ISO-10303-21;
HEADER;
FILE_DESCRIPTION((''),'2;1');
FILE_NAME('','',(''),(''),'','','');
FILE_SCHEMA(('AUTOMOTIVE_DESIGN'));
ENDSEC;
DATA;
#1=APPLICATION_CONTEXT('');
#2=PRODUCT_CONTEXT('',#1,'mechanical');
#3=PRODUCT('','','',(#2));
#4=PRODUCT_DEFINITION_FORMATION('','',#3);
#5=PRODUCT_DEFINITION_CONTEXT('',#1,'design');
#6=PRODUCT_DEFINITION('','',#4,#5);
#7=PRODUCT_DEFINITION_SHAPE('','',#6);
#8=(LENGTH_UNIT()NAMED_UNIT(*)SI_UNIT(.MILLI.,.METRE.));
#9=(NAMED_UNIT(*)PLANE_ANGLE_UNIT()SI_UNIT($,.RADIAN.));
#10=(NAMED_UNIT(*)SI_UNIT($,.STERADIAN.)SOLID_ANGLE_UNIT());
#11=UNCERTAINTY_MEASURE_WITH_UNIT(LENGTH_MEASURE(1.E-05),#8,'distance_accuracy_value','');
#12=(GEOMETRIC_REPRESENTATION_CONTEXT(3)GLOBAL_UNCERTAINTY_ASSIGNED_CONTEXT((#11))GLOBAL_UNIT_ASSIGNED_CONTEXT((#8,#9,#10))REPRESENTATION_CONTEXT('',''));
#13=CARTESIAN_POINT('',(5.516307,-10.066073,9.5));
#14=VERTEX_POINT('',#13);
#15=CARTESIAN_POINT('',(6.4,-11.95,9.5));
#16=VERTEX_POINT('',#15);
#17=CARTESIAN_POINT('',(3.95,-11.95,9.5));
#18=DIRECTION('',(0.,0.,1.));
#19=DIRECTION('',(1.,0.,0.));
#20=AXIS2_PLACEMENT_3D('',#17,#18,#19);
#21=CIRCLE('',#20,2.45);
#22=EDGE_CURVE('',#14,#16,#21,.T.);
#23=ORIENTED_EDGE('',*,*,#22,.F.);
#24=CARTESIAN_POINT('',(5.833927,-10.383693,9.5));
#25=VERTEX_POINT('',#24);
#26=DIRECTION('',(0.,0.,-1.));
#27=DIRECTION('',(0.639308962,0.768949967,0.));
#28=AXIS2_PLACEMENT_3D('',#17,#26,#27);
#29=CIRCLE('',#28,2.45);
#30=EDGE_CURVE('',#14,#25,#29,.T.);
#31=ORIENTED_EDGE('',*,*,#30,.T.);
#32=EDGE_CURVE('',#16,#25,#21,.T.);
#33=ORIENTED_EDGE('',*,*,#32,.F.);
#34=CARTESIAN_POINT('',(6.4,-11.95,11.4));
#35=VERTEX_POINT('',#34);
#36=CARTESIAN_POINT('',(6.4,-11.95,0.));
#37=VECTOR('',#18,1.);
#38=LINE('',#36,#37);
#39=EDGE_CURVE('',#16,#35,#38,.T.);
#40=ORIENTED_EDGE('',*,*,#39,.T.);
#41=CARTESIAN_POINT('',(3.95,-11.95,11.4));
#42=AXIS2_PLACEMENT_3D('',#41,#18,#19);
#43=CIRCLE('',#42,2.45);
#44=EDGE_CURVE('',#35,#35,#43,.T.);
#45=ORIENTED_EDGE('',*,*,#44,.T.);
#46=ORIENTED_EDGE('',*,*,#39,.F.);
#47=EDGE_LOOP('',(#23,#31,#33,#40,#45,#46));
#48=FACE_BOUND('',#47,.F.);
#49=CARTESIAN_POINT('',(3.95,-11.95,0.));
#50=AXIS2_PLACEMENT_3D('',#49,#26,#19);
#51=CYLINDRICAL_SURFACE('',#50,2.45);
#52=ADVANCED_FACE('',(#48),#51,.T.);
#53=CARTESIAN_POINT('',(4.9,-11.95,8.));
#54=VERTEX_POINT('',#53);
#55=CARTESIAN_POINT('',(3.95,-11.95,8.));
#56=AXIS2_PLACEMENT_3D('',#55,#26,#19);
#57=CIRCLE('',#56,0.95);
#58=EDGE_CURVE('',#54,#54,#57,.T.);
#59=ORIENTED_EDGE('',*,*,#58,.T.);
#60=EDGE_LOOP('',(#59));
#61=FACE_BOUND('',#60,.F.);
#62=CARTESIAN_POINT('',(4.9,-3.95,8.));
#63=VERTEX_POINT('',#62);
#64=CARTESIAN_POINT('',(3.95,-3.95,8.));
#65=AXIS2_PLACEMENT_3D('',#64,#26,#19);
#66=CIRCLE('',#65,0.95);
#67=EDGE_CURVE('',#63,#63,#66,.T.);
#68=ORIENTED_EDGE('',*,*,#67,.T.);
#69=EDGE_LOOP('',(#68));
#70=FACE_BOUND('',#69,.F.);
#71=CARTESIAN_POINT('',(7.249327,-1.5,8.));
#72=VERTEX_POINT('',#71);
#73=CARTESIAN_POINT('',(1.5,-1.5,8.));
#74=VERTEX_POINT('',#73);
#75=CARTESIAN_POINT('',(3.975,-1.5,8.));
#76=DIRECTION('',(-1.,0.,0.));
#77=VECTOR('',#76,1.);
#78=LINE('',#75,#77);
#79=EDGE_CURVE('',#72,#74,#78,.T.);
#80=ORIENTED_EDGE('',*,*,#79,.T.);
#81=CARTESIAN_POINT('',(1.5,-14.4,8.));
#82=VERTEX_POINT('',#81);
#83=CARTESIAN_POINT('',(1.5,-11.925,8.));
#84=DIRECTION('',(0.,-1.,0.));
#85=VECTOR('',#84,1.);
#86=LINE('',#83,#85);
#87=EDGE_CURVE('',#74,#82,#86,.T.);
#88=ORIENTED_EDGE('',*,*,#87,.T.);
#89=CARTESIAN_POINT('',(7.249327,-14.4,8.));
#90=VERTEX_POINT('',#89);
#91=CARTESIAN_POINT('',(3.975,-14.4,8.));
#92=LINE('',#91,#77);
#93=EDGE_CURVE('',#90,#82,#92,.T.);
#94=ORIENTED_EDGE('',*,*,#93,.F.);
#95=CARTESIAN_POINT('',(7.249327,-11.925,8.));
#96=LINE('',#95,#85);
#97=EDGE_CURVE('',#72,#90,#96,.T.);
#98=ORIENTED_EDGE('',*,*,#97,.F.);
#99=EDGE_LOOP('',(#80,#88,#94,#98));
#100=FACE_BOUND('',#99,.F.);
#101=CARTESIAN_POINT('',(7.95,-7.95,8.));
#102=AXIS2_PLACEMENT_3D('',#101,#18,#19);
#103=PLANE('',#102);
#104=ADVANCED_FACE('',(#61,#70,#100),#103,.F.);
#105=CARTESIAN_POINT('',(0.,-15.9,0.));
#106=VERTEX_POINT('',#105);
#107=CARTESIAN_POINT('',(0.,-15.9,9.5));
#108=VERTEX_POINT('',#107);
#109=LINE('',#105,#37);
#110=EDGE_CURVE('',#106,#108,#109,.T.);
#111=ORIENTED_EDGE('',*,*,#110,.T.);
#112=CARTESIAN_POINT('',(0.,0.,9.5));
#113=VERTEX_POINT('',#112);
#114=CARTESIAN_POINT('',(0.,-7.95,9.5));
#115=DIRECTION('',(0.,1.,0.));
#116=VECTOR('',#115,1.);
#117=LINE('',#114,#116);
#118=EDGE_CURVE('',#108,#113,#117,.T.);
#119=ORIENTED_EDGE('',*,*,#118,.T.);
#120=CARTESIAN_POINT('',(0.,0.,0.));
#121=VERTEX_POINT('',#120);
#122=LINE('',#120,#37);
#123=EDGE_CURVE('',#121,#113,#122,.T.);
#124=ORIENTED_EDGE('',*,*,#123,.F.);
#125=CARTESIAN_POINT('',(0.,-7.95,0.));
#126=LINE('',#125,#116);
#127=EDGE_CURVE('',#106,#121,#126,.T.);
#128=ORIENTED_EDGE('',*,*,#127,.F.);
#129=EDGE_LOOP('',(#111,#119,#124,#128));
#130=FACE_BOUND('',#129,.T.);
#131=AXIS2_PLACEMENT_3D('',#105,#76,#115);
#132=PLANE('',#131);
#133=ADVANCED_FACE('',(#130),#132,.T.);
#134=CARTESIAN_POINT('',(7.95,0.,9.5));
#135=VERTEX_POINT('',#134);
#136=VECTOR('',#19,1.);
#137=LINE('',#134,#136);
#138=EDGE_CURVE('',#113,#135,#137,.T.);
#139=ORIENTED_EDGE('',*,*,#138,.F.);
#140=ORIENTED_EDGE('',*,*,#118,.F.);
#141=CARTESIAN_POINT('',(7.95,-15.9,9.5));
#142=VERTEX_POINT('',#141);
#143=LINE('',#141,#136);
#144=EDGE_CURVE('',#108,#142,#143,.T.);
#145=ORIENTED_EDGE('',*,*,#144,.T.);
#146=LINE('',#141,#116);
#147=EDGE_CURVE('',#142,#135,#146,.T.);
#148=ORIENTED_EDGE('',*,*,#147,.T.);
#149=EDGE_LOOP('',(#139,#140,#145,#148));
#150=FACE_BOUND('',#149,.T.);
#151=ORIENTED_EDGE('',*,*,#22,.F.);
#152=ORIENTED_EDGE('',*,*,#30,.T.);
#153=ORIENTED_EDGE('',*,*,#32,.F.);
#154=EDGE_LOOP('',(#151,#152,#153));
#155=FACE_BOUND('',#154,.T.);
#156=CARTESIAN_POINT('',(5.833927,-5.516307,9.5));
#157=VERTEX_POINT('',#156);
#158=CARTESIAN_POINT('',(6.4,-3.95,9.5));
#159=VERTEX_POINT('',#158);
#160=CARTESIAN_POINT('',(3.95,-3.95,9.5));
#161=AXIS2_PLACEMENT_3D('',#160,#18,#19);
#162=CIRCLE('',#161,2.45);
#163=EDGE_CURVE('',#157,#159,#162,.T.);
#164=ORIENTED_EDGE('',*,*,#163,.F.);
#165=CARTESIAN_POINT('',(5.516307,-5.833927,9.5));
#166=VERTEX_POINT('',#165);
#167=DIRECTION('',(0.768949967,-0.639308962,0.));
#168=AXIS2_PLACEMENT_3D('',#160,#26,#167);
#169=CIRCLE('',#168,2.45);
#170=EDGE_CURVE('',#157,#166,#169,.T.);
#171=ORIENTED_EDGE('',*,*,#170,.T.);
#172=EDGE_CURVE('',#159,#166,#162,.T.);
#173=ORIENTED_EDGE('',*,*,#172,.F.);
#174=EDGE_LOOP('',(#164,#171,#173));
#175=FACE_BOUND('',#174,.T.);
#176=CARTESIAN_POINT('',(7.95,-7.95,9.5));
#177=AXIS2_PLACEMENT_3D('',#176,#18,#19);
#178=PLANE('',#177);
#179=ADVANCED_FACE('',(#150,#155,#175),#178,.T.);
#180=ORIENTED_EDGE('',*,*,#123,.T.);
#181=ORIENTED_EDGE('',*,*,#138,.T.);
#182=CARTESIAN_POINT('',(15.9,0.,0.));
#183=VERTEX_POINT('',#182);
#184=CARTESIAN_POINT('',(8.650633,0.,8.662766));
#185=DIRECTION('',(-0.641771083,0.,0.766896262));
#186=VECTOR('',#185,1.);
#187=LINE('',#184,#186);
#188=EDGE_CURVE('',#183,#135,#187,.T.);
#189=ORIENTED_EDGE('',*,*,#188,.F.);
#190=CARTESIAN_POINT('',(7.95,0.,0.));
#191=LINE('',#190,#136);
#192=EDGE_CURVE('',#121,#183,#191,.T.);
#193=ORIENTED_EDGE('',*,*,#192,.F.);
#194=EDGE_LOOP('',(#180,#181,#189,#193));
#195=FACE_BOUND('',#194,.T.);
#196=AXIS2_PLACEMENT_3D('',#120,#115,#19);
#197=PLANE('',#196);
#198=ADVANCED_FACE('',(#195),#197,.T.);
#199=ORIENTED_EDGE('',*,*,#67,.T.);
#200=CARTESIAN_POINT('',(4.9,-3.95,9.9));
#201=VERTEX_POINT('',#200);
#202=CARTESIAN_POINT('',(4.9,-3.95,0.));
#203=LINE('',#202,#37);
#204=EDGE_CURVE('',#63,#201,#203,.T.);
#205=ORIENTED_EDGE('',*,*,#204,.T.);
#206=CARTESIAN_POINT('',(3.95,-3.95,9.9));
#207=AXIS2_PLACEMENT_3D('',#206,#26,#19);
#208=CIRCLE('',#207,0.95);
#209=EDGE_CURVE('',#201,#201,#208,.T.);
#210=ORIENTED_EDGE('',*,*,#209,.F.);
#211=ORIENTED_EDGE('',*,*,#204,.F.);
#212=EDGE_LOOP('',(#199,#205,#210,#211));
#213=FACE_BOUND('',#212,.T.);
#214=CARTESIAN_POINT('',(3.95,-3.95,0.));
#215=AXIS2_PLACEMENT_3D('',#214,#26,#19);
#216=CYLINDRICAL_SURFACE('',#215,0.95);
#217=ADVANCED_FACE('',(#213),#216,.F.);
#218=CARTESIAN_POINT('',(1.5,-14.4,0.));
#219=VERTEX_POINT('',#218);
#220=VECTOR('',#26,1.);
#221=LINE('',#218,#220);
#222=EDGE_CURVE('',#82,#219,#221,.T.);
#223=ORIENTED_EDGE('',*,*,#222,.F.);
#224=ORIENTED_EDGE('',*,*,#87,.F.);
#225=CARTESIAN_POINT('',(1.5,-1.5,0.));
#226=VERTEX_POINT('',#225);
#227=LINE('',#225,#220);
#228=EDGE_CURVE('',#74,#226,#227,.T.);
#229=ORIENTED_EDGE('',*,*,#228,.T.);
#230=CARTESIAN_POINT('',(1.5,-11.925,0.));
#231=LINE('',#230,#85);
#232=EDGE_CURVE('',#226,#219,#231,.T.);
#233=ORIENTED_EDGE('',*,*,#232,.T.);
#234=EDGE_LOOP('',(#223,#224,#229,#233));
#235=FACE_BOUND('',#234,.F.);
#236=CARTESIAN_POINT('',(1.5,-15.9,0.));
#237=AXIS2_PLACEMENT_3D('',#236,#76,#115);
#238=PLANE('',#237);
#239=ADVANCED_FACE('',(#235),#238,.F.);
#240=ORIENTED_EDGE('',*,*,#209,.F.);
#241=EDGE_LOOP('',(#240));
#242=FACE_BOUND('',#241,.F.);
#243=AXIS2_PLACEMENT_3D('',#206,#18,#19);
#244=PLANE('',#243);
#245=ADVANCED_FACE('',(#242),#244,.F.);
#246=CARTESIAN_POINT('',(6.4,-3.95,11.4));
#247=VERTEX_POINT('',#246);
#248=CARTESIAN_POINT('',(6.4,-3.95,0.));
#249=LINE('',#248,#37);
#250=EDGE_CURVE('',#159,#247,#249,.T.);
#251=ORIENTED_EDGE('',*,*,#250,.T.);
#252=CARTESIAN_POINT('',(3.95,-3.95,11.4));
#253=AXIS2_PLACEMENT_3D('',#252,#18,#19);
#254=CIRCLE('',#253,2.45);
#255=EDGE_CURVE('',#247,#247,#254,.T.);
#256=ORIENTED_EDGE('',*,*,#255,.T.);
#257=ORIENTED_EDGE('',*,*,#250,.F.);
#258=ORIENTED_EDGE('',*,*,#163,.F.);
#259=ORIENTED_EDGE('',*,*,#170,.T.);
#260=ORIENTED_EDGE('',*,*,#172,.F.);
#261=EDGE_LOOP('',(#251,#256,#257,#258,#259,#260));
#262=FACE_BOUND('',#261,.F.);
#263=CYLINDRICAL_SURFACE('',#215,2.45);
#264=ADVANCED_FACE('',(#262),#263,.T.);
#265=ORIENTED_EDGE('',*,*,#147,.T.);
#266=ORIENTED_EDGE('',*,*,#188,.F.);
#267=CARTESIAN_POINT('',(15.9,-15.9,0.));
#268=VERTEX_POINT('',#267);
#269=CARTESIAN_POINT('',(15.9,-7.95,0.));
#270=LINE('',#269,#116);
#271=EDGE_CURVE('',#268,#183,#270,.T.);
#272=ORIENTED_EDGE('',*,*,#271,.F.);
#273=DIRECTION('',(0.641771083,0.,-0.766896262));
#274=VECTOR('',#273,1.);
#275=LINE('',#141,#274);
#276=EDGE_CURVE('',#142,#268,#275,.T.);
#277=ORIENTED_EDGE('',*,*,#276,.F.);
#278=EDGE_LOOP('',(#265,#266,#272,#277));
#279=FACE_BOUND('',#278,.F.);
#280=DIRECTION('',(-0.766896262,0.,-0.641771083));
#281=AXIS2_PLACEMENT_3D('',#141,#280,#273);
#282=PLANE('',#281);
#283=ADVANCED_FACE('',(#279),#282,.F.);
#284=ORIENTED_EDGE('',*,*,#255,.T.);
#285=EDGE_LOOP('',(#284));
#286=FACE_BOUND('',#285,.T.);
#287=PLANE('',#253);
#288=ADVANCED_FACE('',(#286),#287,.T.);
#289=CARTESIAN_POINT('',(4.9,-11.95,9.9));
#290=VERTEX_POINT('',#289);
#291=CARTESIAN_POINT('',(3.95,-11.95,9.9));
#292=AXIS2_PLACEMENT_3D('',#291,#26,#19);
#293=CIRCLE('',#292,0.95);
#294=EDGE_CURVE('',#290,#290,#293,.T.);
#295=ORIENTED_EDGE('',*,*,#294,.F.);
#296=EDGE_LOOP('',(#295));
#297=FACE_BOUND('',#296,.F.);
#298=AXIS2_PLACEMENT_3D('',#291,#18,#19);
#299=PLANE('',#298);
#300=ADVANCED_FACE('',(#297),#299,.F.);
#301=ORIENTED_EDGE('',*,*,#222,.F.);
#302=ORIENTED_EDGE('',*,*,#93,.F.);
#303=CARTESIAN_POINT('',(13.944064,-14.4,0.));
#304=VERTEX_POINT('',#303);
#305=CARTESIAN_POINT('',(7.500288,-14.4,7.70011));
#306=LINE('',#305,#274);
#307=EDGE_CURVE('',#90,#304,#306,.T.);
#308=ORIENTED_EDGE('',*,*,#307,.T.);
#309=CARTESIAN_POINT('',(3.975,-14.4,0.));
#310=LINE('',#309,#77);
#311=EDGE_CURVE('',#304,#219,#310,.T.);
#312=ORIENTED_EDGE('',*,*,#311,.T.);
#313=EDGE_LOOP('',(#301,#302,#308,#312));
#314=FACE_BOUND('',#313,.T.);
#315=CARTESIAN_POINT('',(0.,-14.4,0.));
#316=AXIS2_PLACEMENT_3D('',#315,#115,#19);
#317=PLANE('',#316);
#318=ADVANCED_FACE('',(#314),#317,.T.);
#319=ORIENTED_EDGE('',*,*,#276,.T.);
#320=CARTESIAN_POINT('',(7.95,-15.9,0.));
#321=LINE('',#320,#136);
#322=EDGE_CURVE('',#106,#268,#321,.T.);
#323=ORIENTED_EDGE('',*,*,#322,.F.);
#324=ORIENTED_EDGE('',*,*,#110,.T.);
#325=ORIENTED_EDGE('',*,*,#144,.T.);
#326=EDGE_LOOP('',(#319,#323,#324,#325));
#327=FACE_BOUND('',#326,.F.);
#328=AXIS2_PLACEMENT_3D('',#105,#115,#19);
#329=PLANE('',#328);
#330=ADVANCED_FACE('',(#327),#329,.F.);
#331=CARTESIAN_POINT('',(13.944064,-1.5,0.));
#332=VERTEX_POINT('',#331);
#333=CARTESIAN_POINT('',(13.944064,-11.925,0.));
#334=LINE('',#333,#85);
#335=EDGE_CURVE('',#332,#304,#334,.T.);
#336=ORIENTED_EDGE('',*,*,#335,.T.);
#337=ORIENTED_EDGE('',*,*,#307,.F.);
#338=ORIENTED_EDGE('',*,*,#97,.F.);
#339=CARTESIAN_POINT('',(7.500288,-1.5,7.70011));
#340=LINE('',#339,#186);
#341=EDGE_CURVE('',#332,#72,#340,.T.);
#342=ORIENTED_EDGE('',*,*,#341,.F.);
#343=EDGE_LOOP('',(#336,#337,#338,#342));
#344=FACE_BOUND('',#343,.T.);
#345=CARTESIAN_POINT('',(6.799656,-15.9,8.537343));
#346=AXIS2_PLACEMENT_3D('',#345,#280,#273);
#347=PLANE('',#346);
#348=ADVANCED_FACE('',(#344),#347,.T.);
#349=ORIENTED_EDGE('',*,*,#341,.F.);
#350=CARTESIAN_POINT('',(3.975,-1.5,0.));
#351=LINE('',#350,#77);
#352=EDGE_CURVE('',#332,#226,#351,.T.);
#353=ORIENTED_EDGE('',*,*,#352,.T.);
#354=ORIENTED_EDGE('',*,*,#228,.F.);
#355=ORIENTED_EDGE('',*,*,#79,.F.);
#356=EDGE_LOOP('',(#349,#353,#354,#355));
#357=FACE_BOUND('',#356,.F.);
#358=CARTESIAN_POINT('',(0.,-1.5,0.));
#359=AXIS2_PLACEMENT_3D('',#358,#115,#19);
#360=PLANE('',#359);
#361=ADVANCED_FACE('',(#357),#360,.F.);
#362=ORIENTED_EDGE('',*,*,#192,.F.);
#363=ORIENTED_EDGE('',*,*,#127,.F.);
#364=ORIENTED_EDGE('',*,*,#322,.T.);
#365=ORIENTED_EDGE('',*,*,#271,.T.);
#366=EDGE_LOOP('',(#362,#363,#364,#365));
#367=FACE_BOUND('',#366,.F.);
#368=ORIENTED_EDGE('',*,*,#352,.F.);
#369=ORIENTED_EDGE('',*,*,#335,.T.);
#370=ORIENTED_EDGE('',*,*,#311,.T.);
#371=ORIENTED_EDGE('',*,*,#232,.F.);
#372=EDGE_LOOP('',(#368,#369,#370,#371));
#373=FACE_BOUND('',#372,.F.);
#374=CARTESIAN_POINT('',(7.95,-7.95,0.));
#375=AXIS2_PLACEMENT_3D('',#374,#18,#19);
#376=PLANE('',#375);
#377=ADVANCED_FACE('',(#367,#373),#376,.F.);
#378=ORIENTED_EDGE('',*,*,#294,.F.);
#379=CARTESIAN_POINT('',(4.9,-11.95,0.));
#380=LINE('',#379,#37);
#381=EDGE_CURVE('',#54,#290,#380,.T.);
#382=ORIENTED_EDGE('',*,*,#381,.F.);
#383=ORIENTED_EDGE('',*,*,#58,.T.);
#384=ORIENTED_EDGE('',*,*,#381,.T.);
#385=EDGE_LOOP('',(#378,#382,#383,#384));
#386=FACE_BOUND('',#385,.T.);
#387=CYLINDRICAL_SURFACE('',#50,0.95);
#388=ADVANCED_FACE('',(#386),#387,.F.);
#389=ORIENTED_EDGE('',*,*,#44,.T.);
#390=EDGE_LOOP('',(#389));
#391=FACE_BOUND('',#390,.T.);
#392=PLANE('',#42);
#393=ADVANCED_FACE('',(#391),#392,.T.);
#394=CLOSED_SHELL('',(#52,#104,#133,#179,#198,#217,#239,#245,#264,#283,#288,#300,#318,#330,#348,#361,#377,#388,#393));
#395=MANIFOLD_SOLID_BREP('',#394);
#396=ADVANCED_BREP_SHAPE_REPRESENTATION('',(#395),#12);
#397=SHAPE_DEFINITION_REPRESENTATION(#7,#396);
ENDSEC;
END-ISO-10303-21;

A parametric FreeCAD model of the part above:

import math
import FreeCAD as App
import Part
import Sketcher
Q = App.Units.Quantity


def faces_at(feature, points):
    """Names of the faces that lie closest to the given points."""
    faces = feature.Shape.Faces
    near = lambda p: min(range(len(faces)), key=lambda i: faces[i].distToShape(Part.Vertex(*p))[0])
    return sorted({f"Face{near(p) + 1}" for p in points})

doc = App.newDocument("Part")
body = doc.addObject("PartDesign::Body", "Body")

# Sketch on XY plane
sketch1 = body.newObject("Sketcher::SketchObject", "Sketch")
sketch1.AttachmentSupport = (doc.getObject("XY_Plane"), [""])
sketch1.MapMode = "FlatFace"
sketch1.addGeometry([
    Part.LineSegment(App.Vector(0, 0, 0), App.Vector(0, -15.9, 0)),  # 0
    Part.LineSegment(App.Vector(0, -15.9, 0), App.Vector(15.9, -15.9, 0)),  # 1
    Part.LineSegment(App.Vector(15.9, -15.9, 0), App.Vector(15.9, 0, 0)),  # 2
    Part.LineSegment(App.Vector(15.9, 0, 0), App.Vector(0, 0, 0)),  # 3
    Part.Circle(App.Vector(4, -11.9, 0), App.Vector(0, 0, 1), 2.5),  # 4
    Part.Circle(App.Vector(4, -4, 0), App.Vector(0, 0, 1), 2.5),  # 5
], False)
sketch1.addConstraint([
    Sketcher.Constraint("Coincident", 0, 2, 1, 1),
    Sketcher.Constraint("Coincident", 1, 2, 2, 1),
    Sketcher.Constraint("Coincident", 2, 2, 3, 1),
    Sketcher.Constraint("Coincident", 3, 2, 0, 1),
    Sketcher.Constraint("Vertical", 0),
    Sketcher.Constraint("Horizontal", 1),
    Sketcher.Constraint("Vertical", 2),
    Sketcher.Constraint("Horizontal", 3),
    Sketcher.Constraint("Coincident", 3, 2, -1, 1),
    Sketcher.Constraint("Equal", 4, 5),
    Sketcher.Constraint("Vertical", 4, 3, 5, 3),
    Sketcher.Constraint("Equal", 3, 0),
    Sketcher.Constraint("Diameter", 4, Q("4.9 mm")),
    Sketcher.Constraint("DistanceX", 1, 1, 1, 2, Q("15.9 mm")),
    Sketcher.Constraint("DistanceY", 4, 3, 5, 3, Q("8 mm")),
    Sketcher.Constraint("DistanceX", -1, 1, 4, 3, Q("3.95 mm")),
    Sketcher.Constraint("DistanceY", 4, 3, -1, 1, Q("11.95 mm")),
])
pad1 = body.newObject("PartDesign::Pad", "Pad")
pad1.Profile = sketch1
pad1.Length = 9.5

# Sketch on XY plane
sketch2 = body.newObject("Sketcher::SketchObject", "Sketch001")
sketch2.AttachmentSupport = (doc.getObject("XY_Plane"), [""])
sketch2.MapMode = "FlatFace"
sketch2.addGeometry([
    Part.Circle(App.Vector(4, -4, 0), App.Vector(0, 0, 1), 2.5),
    Part.Circle(App.Vector(4, -11.9, 0), App.Vector(0, 0, 1), 2.5),
], False)
sketch2.addConstraint([
    Sketcher.Constraint("Equal", 0, 1),
    Sketcher.Constraint("Vertical", 0, 3, 1, 3),
    Sketcher.Constraint("Diameter", 0, Q("4.9 mm")),
    Sketcher.Constraint("DistanceY", 1, 3, 0, 3, Q("8 mm")),
    Sketcher.Constraint("DistanceX", -1, 1, 0, 3, Q("3.95 mm")),
    Sketcher.Constraint("DistanceY", 0, 3, -1, 1, Q("3.95 mm")),
])
pad2 = body.newObject("PartDesign::Pad", "Pad001")
pad2.Profile = sketch2
pad2.Length = 11.4

# Sketch on XY plane
sketch3 = body.newObject("Sketcher::SketchObject", "Sketch002")
sketch3.AttachmentSupport = (doc.getObject("XY_Plane"), [""])
sketch3.MapMode = "FlatFace"
sketch3.addGeometry([
    Part.ArcOfCircle(Part.Circle(App.Vector(3.95, -3.95, 0), App.Vector(0, 0, 1), 2.45), math.radians(-50.26), math.radians(-39.74)),  # 0
    Part.ArcOfCircle(Part.Circle(App.Vector(7.95, -7.95, 0), App.Vector(0, 0, 1), 3.23), math.radians(139), math.radians(221)),  # 1
    Part.ArcOfCircle(Part.Circle(App.Vector(3.95, -11.95, 0), App.Vector(0, 0, 1), 2.45), math.radians(39.74), math.radians(50.26)),  # 2
    Part.ArcOfCircle(Part.Circle(App.Vector(7.95, -7.95, 0), App.Vector(0, 0, 1), 3.23), math.radians(-131), math.radians(0)),  # 3
    Part.ArcOfCircle(Part.Circle(App.Vector(7.95, -7.95, 0), App.Vector(0, 0, 1), 3.23), math.radians(0), math.radians(131)),  # 4
    Part.Circle(App.Vector(7.95, -7.95, 0), App.Vector(0, 0, 1), 2.73),  # 5
], False)
sketch3.addConstraint([
    Sketcher.Constraint("Coincident", 0, 1, 1, 1),
    Sketcher.Constraint("Coincident", 1, 2, 2, 2),
    Sketcher.Constraint("Coincident", 2, 1, 3, 1),
    Sketcher.Constraint("Tangent", 3, 2, 4, 1),
    Sketcher.Constraint("Coincident", 4, 2, 0, 2),
    Sketcher.Constraint("Coincident", 3, 3, 1, 3),
    Sketcher.Constraint("Coincident", 5, 3, 1, 3),
    Sketcher.Constraint("Equal", 0, 2),
    Sketcher.Constraint("Equal", 1, 3),
    Sketcher.Constraint("Equal", 3, 4),
    Sketcher.Constraint("Horizontal", 5, 3, 3, 2),
    Sketcher.Constraint("Vertical", 0, 3, 2, 3),
    Sketcher.Constraint("Vertical", 0, 1, 1, 2),
    Sketcher.Constraint("Diameter", 5, Q("5.45 mm")),
    Sketcher.Constraint("Radius", 0, Q("2.45 mm")),
    Sketcher.Constraint("Radius", 1, Q("3.225 mm")),
    Sketcher.Constraint("DistanceX", 0, 3, 1, 3, Q("4 mm")),
    Sketcher.Constraint("DistanceY", 1, 3, 0, 3, Q("4 mm")),
    Sketcher.Constraint("DistanceX", -1, 1, 0, 3, Q("3.95 mm")),
    Sketcher.Constraint("DistanceY", 0, 3, -1, 1, Q("3.95 mm")),
])
pad3 = body.newObject("PartDesign::Pad", "Pad002")
pad3.Profile = sketch3
pad3.Length = 9.5

# Sketch on XZ plane
sketch4 = body.newObject("Sketcher::SketchObject", "Sketch003")
sketch4.AttachmentSupport = (doc.getObject("XZ_Plane"), [""])
sketch4.MapMode = "FlatFace"
sketch4.AttachmentOffset = App.Placement(App.Vector(0, 0, 15.9), App.Rotation())
sketch4.addGeometry([
    Part.LineSegment(App.Vector(16, 10, 0), App.Vector(8, 10, 0)),
    Part.LineSegment(App.Vector(8, 10, 0), App.Vector(16, 0, 0)),
    Part.LineSegment(App.Vector(16, 0, 0), App.Vector(16, 10, 0)),
], False)
sketch4.addConstraint([
    Sketcher.Constraint("Coincident", 0, 2, 1, 1),
    Sketcher.Constraint("Coincident", 1, 2, 2, 1),
    Sketcher.Constraint("Coincident", 2, 2, 0, 1),
    Sketcher.Constraint("Horizontal", 0),
    Sketcher.Constraint("Vertical", 2),
    Sketcher.Constraint("PointOnObject", 1, 2, -1),
    Sketcher.Constraint("DistanceY", 2, 1, 2, 2, Q("9.5 mm")),
    Sketcher.Constraint("DistanceX", 0, 2, 0, 1, Q("7.95 mm")),
    Sketcher.Constraint("DistanceX", -1, 1, 1, 2, Q("15.9 mm")),
])
pocket1 = body.newObject("PartDesign::Pocket", "Pocket")
pocket1.Profile = sketch4
pocket1.Length = 25
doc.recompute()

thickness = body.newObject("PartDesign::Thickness", "Thickness")
thickness.Base = (pocket1, faces_at(pocket1, [(7.95, -7.95, 0)]))
thickness.Value = 1.5
thickness.Reversed = True
thickness.Join = "Intersection"

doc.recompute()
